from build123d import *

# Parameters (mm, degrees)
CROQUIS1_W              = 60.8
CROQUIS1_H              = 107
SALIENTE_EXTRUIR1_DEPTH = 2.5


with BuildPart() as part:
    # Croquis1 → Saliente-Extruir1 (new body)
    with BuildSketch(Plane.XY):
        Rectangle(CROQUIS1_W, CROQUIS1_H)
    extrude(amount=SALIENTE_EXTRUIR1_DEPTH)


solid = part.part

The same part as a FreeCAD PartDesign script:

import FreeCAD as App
import Part
import Sketcher
from FreeCAD import Vector
Q = App.Units.Quantity

doc = App.newDocument("Part")
body = doc.addObject("PartDesign::Body", "Body")

sketch1 = doc.addObject("Sketcher::SketchObject", "Sketch")
body.addObject(sketch1)
sketch1.AttachmentSupport = (doc.XY_Plane, [""])
sketch1.MapMode = "FlatFace"
sketch1.addGeometry(Part.LineSegment(Vector(-30, 54, 0), Vector(-30, -54, 0)), False)
sketch1.addGeometry(Part.LineSegment(Vector(-30, -54, 0), Vector(30, -54, 0)), False)
sketch1.addGeometry(Part.LineSegment(Vector(30, -54, 0), Vector(30, 54, 0)), False)
sketch1.addGeometry(Part.LineSegment(Vector(30, 54, 0), Vector(-30, 54, 0)), False)
sketch1.addConstraint(Sketcher.Constraint("Coincident", 0, 2, 1, 1))
sketch1.addConstraint(Sketcher.Constraint("Coincident", 1, 2, 2, 1))
sketch1.addConstraint(Sketcher.Constraint("Coincident", 2, 2, 3, 1))
sketch1.addConstraint(Sketcher.Constraint("Coincident", 3, 2, 0, 1))
sketch1.addConstraint(Sketcher.Constraint("Vertical", 0))
sketch1.addConstraint(Sketcher.Constraint("Horizontal", 1))
sketch1.addConstraint(Sketcher.Constraint("Vertical", 2))
sketch1.addConstraint(Sketcher.Constraint("Horizontal", 3))
sketch1.addConstraint(Sketcher.Constraint("Symmetric", 0, 2, 2, 2, -1, 1))
sketch1.addConstraint(Sketcher.Constraint("DistanceY", 0, 2, 0, 1, Q("107 mm")))
sketch1.addConstraint(Sketcher.Constraint("DistanceX", 1, 1, 1, 2, Q("60.8 mm")))
pad1 = doc.addObject("PartDesign::Pad", "Pad")
body.addObject(pad1)
pad1.Profile = sketch1
pad1.Length = 2.5

doc.recompute()
